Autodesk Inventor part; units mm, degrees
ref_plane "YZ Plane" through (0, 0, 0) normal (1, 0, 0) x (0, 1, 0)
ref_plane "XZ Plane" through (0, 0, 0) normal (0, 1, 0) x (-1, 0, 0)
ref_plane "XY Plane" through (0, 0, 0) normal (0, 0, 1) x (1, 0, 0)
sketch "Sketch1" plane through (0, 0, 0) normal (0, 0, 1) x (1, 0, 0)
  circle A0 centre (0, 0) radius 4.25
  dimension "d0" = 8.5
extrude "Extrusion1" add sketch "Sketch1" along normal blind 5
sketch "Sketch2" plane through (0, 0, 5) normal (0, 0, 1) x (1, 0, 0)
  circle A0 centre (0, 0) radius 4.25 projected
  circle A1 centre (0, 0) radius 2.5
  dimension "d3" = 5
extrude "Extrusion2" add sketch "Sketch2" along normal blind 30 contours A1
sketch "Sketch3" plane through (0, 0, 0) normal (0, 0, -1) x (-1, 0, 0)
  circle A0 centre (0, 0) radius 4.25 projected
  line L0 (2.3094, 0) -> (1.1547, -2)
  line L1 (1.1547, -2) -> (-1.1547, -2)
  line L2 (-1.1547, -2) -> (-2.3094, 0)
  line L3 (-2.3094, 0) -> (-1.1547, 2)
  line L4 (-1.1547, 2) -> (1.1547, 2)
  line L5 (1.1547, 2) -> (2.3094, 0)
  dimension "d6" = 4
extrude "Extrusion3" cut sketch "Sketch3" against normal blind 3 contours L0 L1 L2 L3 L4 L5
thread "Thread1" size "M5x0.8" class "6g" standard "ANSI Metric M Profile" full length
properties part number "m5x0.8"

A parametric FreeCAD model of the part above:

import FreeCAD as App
import Part
import Sketcher
Q = App.Units.Quantity

doc = App.newDocument("Part")
params = doc.addObject("Spreadsheet::Sheet", "Params")
for row, (alias, value) in enumerate([
    ("sketch1_diameter", "8.5 mm"),
    ("pad1_length", "5 mm"),
    ("sketch2_diameter", "5 mm"),
    ("pad2_length", "30 mm"),
    ("pocket1_length", "3 mm"),
], start=1):
    params.set(f"A{row}", alias)
    params.set(f"B{row}", "=" + value)
    params.setAlias(f"B{row}", alias)

body = doc.addObject("PartDesign::Body", "Body")

# Sketch on XY plane
sketch1 = body.newObject("Sketcher::SketchObject", "Sketch")
sketch1.AttachmentSupport = (doc.getObject("XY_Plane"), [""])
sketch1.MapMode = "FlatFace"
sketch1.addGeometry(Part.Circle(App.Vector(0, 0, 0), App.Vector(0, 0, 1), 4.2), False)
sketch1.addConstraint(Sketcher.Constraint("Coincident", 0, 3, -1, 1))
sketch1.addConstraint(Sketcher.Constraint("Diameter", 0, 8.5))
sketch1.setExpression("Constraints[1]", "Params.sketch1_diameter")
pad1 = body.newObject("PartDesign::Pad", "Pad")
pad1.Profile = sketch1
pad1.setExpression("Length", "Params.pad1_length")

# Sketch on XY plane
sketch2 = body.newObject("Sketcher::SketchObject", "Sketch001")
sketch2.AttachmentSupport = (doc.getObject("XY_Plane"), [""])
sketch2.MapMode = "FlatFace"
sketch2.AttachmentOffset = App.Placement(App.Vector(0, 0, 5), App.Rotation())
sketch2.addGeometry(Part.Circle(App.Vector(0, 0, 0), App.Vector(0, 0, 1), 2.5), False)
sketch2.addConstraint(Sketcher.Constraint("Coincident", 0, 3, -1, 1))
sketch2.addConstraint(Sketcher.Constraint("Diameter", 0, 5.0))
sketch2.setExpression("Constraints[1]", "Params.sketch2_diameter")
pad2 = body.newObject("PartDesign::Pad", "Pad001")
pad2.Profile = sketch2
pad2.setExpression("Length", "Params.pad2_length")

# Sketch on XY plane
sketch3 = body.newObject("Sketcher::SketchObject", "Sketch002")
sketch3.AttachmentSupport = (doc.getObject("XY_Plane"), [""])
sketch3.MapMode = "FlatFace"
sketch3.addGeometry(Part.LineSegment(App.Vector(-1.2, -2, 0), App.Vector(-2.3, 0, 0)), False)
sketch3.addGeometry(Part.LineSegment(App.Vector(-2.3, 0, 0), App.Vector(-1.2, 2, 0)), False)
sketch3.addGeometry(Part.LineSegment(App.Vector(-1.2, 2, 0), App.Vector(1.2, 2, 0)), False)
sketch3.addGeometry(Part.LineSegment(App.Vector(1.2, 2, 0), App.Vector(2.3, 0, 0)), False)
sketch3.addGeometry(Part.LineSegment(App.Vector(2.3, 0, 0), App.Vector(1.2, -2, 0)), False)
sketch3.addGeometry(Part.LineSegment(App.Vector(1.2, -2, 0), App.Vector(-1.2, -2, 0)), False)
sketch3.addConstraint(Sketcher.Constraint("Coincident", 0, 2, 1, 1))
sketch3.addConstraint(Sketcher.Constraint("Coincident", 1, 2, 2, 1))
sketch3.addConstraint(Sketcher.Constraint("Coincident", 2, 2, 3, 1))
sketch3.addConstraint(Sketcher.Constraint("Coincident", 3, 2, 4, 1))
sketch3.addConstraint(Sketcher.Constraint("Coincident", 4, 2, 5, 1))
sketch3.addConstraint(Sketcher.Constraint("Coincident", 5, 2, 0, 1))
sketch3.addConstraint(Sketcher.Constraint("Horizontal", 2))
sketch3.addConstraint(Sketcher.Constraint("Horizontal", 5))
sketch3.addConstraint(Sketcher.Constraint("Symmetric", 0, 2, 3, 2, -1, 1))
sketch3.addConstraint(Sketcher.Constraint("Symmetric", 1, 2, 4, 2, -1, 1))
sketch3.addConstraint(Sketcher.Constraint("PointOnObject", 0, 2, -1))
sketch3.addConstraint(Sketcher.Constraint("Parallel", 0, 3))
sketch3.addConstraint(Sketcher.Constraint("Vertical", 2, 2, 4, 2))
sketch3.addConstraint(Sketcher.Constraint("DistanceY", 4, 2, 2, 2, 4.0))
sketch3.addConstraint(Sketcher.Constraint("Angle", 0, Q("120 deg")))
sketch3.addConstraint(Sketcher.Constraint("DistanceX", 2, 1, 2, 2, 2.3094))
pocket1 = body.newObject("PartDesign::Pocket", "Pocket")
pocket1.Profile = sketch3
pocket1.setExpression("Length", "Params.pocket1_length")
pocket1.Reversed = True

doc.recompute()
